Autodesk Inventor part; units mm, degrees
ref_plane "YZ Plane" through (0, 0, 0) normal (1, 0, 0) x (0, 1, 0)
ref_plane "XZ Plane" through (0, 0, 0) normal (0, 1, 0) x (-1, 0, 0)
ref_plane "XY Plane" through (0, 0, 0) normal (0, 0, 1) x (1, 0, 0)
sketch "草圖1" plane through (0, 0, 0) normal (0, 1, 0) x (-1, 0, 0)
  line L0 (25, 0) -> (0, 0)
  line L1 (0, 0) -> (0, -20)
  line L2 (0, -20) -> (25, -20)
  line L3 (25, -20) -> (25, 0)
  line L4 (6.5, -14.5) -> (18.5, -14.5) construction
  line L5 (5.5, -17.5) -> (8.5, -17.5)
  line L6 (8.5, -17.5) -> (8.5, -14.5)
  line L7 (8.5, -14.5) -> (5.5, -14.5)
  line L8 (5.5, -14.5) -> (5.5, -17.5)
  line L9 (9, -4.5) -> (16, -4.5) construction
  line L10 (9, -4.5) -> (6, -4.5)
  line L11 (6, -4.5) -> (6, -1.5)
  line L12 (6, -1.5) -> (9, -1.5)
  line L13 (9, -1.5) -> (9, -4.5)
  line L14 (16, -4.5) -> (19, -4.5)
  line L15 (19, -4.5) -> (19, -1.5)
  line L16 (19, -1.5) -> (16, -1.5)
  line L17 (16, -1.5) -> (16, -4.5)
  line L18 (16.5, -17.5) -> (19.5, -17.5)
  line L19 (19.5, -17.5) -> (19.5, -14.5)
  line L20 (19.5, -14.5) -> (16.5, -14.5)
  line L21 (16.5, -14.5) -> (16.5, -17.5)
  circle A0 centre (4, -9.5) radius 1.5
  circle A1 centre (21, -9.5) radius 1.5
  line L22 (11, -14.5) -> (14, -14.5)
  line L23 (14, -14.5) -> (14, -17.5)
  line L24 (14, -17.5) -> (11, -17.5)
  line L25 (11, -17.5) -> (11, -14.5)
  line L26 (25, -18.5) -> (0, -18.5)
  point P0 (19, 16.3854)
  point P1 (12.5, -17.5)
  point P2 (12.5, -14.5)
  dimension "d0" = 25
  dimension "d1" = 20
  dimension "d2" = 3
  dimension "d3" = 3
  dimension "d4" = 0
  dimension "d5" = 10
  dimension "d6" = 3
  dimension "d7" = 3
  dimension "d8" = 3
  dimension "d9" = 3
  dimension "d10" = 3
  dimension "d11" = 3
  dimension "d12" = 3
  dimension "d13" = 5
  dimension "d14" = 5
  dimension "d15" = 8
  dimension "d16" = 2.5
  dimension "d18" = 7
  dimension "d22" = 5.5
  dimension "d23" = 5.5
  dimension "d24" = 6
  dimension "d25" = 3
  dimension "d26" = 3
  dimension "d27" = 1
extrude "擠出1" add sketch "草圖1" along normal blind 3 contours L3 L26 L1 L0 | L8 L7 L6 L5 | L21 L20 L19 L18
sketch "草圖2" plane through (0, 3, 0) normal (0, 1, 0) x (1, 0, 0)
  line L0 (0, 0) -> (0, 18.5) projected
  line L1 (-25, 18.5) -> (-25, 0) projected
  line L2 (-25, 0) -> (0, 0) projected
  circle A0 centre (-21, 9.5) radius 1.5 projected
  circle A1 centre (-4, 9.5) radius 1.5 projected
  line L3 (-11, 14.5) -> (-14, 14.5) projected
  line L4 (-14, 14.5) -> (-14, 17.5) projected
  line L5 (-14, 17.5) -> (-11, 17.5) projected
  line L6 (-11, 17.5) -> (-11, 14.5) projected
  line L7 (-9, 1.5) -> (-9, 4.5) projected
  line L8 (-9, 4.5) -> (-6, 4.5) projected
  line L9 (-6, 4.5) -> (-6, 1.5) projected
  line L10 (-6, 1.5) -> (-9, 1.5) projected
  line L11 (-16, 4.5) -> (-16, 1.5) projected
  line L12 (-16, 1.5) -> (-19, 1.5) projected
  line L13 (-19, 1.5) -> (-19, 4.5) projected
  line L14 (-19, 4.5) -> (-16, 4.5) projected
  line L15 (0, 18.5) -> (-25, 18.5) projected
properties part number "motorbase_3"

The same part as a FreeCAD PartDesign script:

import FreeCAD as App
import Part
import Sketcher
from FreeCAD import Vector
Q = App.Units.Quantity

doc = App.newDocument("Part")
body = doc.addObject("PartDesign::Body", "Body")

# Sketch on XZ plane
sketch1 = doc.addObject("Sketcher::SketchObject", "Sketch")
body.addObject(sketch1)
sketch1.AttachmentSupport = (doc.XZ_Plane, [""])
sketch1.MapMode = "FlatFace"
sketch1.addGeometry([
    Part.LineSegment(Vector(-25, -18.5, 0), Vector(-25, 0, 0)),  # 0
    Part.LineSegment(Vector(-25, 0, 0), Vector(0, 0, 0)),  # 1
    Part.LineSegment(Vector(0, 0, 0), Vector(0, -18.5, 0)),  # 2
    Part.LineSegment(Vector(0, -18.5, 0), Vector(-25, -18.5, 0)),  # 3
    Part.LineSegment(Vector(-11, -17.5, 0), Vector(-11, -14.5, 0)),  # 4
    Part.LineSegment(Vector(-11, -14.5, 0), Vector(-14, -14.5, 0)),  # 5
    Part.LineSegment(Vector(-14, -14.5, 0), Vector(-14, -17.5, 0)),  # 6
    Part.LineSegment(Vector(-14, -17.5, 0), Vector(-11, -17.5, 0)),  # 7
    Part.Circle(Vector(-4, -9.5, 0), Vector(0, 0, 1), 1.5),  # 8
    Part.LineSegment(Vector(-9, -1.5, 0), Vector(-9, -4.5, 0)),  # 9
    Part.LineSegment(Vector(-9, -4.5, 0), Vector(-6, -4.5, 0)),  # 10
    Part.LineSegment(Vector(-6, -4.5, 0), Vector(-6, -1.5, 0)),  # 11
    Part.LineSegment(Vector(-6, -1.5, 0), Vector(-9, -1.5, 0)),  # 12
    Part.Circle(Vector(-21, -9.5, 0), Vector(0, 0, 1), 1.5),  # 13
    Part.LineSegment(Vector(-19, -4.5, 0), Vector(-16, -4.5, 0)),  # 14
    Part.LineSegment(Vector(-16, -4.5, 0), Vector(-16, -1.5, 0)),  # 15
    Part.LineSegment(Vector(-16, -1.5, 0), Vector(-19, -1.5, 0)),  # 16
    Part.LineSegment(Vector(-19, -1.5, 0), Vector(-19, -4.5, 0)),  # 17
], False)
sketch1.addConstraint([
    Sketcher.Constraint("Coincident", 0, 2, 1, 1),
    Sketcher.Constraint("Coincident", 1, 2, 2, 1),
    Sketcher.Constraint("Coincident", 2, 2, 3, 1),
    Sketcher.Constraint("Coincident", 3, 2, 0, 1),
    Sketcher.Constraint("Coincident", 4, 2, 5, 1),
    Sketcher.Constraint("Coincident", 5, 2, 6, 1),
    Sketcher.Constraint("Coincident", 6, 2, 7, 1),
    Sketcher.Constraint("Coincident", 7, 2, 4, 1),
    Sketcher.Constraint("Coincident", 9, 2, 10, 1),
    Sketcher.Constraint("Coincident", 10, 2, 11, 1),
    Sketcher.Constraint("Coincident", 11, 2, 12, 1),
    Sketcher.Constraint("Coincident", 12, 2, 9, 1),
    Sketcher.Constraint("Coincident", 14, 2, 15, 1),
    Sketcher.Constraint("Coincident", 15, 2, 16, 1),
    Sketcher.Constraint("Coincident", 16, 2, 17, 1),
    Sketcher.Constraint("Coincident", 17, 2, 14, 1),
    Sketcher.Constraint("Vertical", 0),
    Sketcher.Constraint("Horizontal", 1),
    Sketcher.Constraint("Vertical", 2),
    Sketcher.Constraint("Horizontal", 3),
    Sketcher.Constraint("Vertical", 4),
    Sketcher.Constraint("Horizontal", 5),
    Sketcher.Constraint("Vertical", 6),
    Sketcher.Constraint("Horizontal", 7),
    Sketcher.Constraint("Vertical", 9),
    Sketcher.Constraint("Horizontal", 10),
    Sketcher.Constraint("Vertical", 11),
    Sketcher.Constraint("Horizontal", 12),
    Sketcher.Constraint("Horizontal", 14),
    Sketcher.Constraint("Vertical", 15),
    Sketcher.Constraint("Horizontal", 16),
    Sketcher.Constraint("Vertical", 17),
    Sketcher.Constraint("Coincident", 1, 2, -1, 1),
    Sketcher.Constraint("Equal", 8, 13),
    Sketcher.Constraint("Horizontal", 8, 3, 13, 3),
    Sketcher.Constraint("Horizontal", 10, 2, 14, 2),
    Sketcher.Constraint("Horizontal", 12, 2, 15, 2),
    Sketcher.Constraint("Equal", 7, 10),
    Sketcher.Constraint("Equal", 12, 14),
    Sketcher.Constraint("Equal", 16, 4),
    Sketcher.Constraint("Equal", 6, 9),
    Sketcher.Constraint("Diameter", 8, Q("3 mm")),
    Sketcher.Constraint("DistanceX", 1, 1, 1, 2, Q("25 mm")),
    Sketcher.Constraint("DistanceX", 5, 2, 5, 1, Q("3 mm")),
    Sketcher.Constraint("DistanceX", 10, 2, -1, 1, Q("6 mm")),
    Sketcher.Constraint("DistanceX", 4, 2, 8, 3, Q("7 mm")),
    Sketcher.Constraint("DistanceY", 4, 2, 8, 3, Q("5 mm")),
    Sketcher.Constraint("DistanceX", 13, 3, 4, 2, Q("10 mm")),
    Sketcher.Constraint("DistanceY", 3, 2, 6, 2, Q("1 mm")),
    Sketcher.Constraint("DistanceX", 9, 2, 8, 3, Q("5 mm")),
    Sketcher.Constraint("DistanceY", 8, 3, 9, 2, Q("5 mm")),
    Sketcher.Constraint("DistanceX", 14, 2, 9, 2, Q("7 mm")),
    Sketcher.Constraint("DistanceY", 0, 1, 0, 2, Q("18.5 mm")),
])
pad1 = doc.addObject("PartDesign::Pad", "Pad")
body.addObject(pad1)
pad1.Profile = sketch1
pad1.Length = 3
pad1.Reversed = True

doc.recompute()
